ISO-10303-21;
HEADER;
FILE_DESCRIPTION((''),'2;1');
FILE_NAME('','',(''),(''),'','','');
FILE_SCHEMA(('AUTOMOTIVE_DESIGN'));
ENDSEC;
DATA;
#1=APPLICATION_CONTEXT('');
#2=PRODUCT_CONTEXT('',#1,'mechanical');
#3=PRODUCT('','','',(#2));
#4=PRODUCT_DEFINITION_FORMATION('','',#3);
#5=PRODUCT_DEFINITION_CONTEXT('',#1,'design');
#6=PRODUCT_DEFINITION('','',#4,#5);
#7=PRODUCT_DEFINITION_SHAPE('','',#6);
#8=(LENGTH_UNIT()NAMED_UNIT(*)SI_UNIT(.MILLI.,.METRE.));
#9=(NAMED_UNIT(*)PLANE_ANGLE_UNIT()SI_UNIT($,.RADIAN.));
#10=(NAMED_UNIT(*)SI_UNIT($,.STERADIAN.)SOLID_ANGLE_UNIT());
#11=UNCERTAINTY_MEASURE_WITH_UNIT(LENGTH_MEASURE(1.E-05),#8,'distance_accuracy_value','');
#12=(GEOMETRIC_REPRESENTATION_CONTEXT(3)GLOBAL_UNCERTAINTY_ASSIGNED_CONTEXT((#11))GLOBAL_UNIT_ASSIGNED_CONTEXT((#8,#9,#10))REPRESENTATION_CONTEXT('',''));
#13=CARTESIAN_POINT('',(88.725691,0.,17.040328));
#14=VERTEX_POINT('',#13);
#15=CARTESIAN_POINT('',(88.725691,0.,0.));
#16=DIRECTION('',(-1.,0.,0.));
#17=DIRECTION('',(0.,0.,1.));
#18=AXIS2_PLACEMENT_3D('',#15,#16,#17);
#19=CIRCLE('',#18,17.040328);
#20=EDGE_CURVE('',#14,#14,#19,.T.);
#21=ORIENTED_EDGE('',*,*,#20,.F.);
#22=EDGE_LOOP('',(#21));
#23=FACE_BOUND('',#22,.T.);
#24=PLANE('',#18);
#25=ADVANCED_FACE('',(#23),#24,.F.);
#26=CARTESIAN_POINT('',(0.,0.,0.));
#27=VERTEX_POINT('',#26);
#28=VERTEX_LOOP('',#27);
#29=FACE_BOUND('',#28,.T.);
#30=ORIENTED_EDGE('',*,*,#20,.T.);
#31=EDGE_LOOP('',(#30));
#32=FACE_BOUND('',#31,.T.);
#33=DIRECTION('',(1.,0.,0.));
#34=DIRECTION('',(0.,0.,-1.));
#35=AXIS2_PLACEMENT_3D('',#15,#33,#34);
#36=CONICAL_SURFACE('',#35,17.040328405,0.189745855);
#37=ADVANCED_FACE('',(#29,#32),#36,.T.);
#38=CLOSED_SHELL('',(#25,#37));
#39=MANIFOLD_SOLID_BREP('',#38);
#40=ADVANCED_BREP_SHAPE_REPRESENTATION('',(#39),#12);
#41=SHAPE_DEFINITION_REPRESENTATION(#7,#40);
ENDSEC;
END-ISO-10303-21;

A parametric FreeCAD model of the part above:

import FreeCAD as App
import Part
import Sketcher

V = App.Vector

doc = App.newDocument("Part")
params = doc.addObject("Spreadsheet::Sheet", "Params")
for row, (alias, value) in enumerate([
    ("revolution_angle", "360 deg"),
], start=1):
    params.set(f"A{row}", alias)
    params.set(f"B{row}", "=" + value)
    params.setAlias(f"B{row}", alias)

body = doc.addObject("PartDesign::Body", "Body")

# Sketch on XY plane
sketch1 = doc.addObject("Sketcher::SketchObject", "Sketch")
body.addObject(sketch1)
sketch1.AttachmentSupport = (doc.XY_Plane, [""])
sketch1.MapMode = "FlatFace"
sketch1.addGeometry([
    Part.LineSegment(V(0, 0, 0), V(89, 0, 0)),
    Part.LineSegment(V(89, 0, 0), V(89, 17, 0)),
    Part.LineSegment(V(89, 17, 0), V(0, 0, 0)),
], False)
sketch1.addConstraint([
    Sketcher.Constraint("Coincident", 0, 2, 1, 1),
    Sketcher.Constraint("Coincident", 1, 2, 2, 1),
    Sketcher.Constraint("Coincident", 2, 2, 0, 1),
    Sketcher.Constraint("Horizontal", 0),
    Sketcher.Constraint("Vertical", 1),
    Sketcher.Constraint("Coincident", 2, 2, -1, 1),
    Sketcher.Constraint("DistanceX", 0, 1, 0, 2, 88.725691),
    Sketcher.Constraint("DistanceY", 1, 1, 1, 2, 17.040328),
])
revolution = doc.addObject("PartDesign::Revolution", "Revolution")
body.addObject(revolution)
revolution.Profile = sketch1
revolution.ReferenceAxis = (sketch1, ["H_Axis"])
revolution.setExpression("Angle", "Params.revolution_angle")

doc.recompute()
